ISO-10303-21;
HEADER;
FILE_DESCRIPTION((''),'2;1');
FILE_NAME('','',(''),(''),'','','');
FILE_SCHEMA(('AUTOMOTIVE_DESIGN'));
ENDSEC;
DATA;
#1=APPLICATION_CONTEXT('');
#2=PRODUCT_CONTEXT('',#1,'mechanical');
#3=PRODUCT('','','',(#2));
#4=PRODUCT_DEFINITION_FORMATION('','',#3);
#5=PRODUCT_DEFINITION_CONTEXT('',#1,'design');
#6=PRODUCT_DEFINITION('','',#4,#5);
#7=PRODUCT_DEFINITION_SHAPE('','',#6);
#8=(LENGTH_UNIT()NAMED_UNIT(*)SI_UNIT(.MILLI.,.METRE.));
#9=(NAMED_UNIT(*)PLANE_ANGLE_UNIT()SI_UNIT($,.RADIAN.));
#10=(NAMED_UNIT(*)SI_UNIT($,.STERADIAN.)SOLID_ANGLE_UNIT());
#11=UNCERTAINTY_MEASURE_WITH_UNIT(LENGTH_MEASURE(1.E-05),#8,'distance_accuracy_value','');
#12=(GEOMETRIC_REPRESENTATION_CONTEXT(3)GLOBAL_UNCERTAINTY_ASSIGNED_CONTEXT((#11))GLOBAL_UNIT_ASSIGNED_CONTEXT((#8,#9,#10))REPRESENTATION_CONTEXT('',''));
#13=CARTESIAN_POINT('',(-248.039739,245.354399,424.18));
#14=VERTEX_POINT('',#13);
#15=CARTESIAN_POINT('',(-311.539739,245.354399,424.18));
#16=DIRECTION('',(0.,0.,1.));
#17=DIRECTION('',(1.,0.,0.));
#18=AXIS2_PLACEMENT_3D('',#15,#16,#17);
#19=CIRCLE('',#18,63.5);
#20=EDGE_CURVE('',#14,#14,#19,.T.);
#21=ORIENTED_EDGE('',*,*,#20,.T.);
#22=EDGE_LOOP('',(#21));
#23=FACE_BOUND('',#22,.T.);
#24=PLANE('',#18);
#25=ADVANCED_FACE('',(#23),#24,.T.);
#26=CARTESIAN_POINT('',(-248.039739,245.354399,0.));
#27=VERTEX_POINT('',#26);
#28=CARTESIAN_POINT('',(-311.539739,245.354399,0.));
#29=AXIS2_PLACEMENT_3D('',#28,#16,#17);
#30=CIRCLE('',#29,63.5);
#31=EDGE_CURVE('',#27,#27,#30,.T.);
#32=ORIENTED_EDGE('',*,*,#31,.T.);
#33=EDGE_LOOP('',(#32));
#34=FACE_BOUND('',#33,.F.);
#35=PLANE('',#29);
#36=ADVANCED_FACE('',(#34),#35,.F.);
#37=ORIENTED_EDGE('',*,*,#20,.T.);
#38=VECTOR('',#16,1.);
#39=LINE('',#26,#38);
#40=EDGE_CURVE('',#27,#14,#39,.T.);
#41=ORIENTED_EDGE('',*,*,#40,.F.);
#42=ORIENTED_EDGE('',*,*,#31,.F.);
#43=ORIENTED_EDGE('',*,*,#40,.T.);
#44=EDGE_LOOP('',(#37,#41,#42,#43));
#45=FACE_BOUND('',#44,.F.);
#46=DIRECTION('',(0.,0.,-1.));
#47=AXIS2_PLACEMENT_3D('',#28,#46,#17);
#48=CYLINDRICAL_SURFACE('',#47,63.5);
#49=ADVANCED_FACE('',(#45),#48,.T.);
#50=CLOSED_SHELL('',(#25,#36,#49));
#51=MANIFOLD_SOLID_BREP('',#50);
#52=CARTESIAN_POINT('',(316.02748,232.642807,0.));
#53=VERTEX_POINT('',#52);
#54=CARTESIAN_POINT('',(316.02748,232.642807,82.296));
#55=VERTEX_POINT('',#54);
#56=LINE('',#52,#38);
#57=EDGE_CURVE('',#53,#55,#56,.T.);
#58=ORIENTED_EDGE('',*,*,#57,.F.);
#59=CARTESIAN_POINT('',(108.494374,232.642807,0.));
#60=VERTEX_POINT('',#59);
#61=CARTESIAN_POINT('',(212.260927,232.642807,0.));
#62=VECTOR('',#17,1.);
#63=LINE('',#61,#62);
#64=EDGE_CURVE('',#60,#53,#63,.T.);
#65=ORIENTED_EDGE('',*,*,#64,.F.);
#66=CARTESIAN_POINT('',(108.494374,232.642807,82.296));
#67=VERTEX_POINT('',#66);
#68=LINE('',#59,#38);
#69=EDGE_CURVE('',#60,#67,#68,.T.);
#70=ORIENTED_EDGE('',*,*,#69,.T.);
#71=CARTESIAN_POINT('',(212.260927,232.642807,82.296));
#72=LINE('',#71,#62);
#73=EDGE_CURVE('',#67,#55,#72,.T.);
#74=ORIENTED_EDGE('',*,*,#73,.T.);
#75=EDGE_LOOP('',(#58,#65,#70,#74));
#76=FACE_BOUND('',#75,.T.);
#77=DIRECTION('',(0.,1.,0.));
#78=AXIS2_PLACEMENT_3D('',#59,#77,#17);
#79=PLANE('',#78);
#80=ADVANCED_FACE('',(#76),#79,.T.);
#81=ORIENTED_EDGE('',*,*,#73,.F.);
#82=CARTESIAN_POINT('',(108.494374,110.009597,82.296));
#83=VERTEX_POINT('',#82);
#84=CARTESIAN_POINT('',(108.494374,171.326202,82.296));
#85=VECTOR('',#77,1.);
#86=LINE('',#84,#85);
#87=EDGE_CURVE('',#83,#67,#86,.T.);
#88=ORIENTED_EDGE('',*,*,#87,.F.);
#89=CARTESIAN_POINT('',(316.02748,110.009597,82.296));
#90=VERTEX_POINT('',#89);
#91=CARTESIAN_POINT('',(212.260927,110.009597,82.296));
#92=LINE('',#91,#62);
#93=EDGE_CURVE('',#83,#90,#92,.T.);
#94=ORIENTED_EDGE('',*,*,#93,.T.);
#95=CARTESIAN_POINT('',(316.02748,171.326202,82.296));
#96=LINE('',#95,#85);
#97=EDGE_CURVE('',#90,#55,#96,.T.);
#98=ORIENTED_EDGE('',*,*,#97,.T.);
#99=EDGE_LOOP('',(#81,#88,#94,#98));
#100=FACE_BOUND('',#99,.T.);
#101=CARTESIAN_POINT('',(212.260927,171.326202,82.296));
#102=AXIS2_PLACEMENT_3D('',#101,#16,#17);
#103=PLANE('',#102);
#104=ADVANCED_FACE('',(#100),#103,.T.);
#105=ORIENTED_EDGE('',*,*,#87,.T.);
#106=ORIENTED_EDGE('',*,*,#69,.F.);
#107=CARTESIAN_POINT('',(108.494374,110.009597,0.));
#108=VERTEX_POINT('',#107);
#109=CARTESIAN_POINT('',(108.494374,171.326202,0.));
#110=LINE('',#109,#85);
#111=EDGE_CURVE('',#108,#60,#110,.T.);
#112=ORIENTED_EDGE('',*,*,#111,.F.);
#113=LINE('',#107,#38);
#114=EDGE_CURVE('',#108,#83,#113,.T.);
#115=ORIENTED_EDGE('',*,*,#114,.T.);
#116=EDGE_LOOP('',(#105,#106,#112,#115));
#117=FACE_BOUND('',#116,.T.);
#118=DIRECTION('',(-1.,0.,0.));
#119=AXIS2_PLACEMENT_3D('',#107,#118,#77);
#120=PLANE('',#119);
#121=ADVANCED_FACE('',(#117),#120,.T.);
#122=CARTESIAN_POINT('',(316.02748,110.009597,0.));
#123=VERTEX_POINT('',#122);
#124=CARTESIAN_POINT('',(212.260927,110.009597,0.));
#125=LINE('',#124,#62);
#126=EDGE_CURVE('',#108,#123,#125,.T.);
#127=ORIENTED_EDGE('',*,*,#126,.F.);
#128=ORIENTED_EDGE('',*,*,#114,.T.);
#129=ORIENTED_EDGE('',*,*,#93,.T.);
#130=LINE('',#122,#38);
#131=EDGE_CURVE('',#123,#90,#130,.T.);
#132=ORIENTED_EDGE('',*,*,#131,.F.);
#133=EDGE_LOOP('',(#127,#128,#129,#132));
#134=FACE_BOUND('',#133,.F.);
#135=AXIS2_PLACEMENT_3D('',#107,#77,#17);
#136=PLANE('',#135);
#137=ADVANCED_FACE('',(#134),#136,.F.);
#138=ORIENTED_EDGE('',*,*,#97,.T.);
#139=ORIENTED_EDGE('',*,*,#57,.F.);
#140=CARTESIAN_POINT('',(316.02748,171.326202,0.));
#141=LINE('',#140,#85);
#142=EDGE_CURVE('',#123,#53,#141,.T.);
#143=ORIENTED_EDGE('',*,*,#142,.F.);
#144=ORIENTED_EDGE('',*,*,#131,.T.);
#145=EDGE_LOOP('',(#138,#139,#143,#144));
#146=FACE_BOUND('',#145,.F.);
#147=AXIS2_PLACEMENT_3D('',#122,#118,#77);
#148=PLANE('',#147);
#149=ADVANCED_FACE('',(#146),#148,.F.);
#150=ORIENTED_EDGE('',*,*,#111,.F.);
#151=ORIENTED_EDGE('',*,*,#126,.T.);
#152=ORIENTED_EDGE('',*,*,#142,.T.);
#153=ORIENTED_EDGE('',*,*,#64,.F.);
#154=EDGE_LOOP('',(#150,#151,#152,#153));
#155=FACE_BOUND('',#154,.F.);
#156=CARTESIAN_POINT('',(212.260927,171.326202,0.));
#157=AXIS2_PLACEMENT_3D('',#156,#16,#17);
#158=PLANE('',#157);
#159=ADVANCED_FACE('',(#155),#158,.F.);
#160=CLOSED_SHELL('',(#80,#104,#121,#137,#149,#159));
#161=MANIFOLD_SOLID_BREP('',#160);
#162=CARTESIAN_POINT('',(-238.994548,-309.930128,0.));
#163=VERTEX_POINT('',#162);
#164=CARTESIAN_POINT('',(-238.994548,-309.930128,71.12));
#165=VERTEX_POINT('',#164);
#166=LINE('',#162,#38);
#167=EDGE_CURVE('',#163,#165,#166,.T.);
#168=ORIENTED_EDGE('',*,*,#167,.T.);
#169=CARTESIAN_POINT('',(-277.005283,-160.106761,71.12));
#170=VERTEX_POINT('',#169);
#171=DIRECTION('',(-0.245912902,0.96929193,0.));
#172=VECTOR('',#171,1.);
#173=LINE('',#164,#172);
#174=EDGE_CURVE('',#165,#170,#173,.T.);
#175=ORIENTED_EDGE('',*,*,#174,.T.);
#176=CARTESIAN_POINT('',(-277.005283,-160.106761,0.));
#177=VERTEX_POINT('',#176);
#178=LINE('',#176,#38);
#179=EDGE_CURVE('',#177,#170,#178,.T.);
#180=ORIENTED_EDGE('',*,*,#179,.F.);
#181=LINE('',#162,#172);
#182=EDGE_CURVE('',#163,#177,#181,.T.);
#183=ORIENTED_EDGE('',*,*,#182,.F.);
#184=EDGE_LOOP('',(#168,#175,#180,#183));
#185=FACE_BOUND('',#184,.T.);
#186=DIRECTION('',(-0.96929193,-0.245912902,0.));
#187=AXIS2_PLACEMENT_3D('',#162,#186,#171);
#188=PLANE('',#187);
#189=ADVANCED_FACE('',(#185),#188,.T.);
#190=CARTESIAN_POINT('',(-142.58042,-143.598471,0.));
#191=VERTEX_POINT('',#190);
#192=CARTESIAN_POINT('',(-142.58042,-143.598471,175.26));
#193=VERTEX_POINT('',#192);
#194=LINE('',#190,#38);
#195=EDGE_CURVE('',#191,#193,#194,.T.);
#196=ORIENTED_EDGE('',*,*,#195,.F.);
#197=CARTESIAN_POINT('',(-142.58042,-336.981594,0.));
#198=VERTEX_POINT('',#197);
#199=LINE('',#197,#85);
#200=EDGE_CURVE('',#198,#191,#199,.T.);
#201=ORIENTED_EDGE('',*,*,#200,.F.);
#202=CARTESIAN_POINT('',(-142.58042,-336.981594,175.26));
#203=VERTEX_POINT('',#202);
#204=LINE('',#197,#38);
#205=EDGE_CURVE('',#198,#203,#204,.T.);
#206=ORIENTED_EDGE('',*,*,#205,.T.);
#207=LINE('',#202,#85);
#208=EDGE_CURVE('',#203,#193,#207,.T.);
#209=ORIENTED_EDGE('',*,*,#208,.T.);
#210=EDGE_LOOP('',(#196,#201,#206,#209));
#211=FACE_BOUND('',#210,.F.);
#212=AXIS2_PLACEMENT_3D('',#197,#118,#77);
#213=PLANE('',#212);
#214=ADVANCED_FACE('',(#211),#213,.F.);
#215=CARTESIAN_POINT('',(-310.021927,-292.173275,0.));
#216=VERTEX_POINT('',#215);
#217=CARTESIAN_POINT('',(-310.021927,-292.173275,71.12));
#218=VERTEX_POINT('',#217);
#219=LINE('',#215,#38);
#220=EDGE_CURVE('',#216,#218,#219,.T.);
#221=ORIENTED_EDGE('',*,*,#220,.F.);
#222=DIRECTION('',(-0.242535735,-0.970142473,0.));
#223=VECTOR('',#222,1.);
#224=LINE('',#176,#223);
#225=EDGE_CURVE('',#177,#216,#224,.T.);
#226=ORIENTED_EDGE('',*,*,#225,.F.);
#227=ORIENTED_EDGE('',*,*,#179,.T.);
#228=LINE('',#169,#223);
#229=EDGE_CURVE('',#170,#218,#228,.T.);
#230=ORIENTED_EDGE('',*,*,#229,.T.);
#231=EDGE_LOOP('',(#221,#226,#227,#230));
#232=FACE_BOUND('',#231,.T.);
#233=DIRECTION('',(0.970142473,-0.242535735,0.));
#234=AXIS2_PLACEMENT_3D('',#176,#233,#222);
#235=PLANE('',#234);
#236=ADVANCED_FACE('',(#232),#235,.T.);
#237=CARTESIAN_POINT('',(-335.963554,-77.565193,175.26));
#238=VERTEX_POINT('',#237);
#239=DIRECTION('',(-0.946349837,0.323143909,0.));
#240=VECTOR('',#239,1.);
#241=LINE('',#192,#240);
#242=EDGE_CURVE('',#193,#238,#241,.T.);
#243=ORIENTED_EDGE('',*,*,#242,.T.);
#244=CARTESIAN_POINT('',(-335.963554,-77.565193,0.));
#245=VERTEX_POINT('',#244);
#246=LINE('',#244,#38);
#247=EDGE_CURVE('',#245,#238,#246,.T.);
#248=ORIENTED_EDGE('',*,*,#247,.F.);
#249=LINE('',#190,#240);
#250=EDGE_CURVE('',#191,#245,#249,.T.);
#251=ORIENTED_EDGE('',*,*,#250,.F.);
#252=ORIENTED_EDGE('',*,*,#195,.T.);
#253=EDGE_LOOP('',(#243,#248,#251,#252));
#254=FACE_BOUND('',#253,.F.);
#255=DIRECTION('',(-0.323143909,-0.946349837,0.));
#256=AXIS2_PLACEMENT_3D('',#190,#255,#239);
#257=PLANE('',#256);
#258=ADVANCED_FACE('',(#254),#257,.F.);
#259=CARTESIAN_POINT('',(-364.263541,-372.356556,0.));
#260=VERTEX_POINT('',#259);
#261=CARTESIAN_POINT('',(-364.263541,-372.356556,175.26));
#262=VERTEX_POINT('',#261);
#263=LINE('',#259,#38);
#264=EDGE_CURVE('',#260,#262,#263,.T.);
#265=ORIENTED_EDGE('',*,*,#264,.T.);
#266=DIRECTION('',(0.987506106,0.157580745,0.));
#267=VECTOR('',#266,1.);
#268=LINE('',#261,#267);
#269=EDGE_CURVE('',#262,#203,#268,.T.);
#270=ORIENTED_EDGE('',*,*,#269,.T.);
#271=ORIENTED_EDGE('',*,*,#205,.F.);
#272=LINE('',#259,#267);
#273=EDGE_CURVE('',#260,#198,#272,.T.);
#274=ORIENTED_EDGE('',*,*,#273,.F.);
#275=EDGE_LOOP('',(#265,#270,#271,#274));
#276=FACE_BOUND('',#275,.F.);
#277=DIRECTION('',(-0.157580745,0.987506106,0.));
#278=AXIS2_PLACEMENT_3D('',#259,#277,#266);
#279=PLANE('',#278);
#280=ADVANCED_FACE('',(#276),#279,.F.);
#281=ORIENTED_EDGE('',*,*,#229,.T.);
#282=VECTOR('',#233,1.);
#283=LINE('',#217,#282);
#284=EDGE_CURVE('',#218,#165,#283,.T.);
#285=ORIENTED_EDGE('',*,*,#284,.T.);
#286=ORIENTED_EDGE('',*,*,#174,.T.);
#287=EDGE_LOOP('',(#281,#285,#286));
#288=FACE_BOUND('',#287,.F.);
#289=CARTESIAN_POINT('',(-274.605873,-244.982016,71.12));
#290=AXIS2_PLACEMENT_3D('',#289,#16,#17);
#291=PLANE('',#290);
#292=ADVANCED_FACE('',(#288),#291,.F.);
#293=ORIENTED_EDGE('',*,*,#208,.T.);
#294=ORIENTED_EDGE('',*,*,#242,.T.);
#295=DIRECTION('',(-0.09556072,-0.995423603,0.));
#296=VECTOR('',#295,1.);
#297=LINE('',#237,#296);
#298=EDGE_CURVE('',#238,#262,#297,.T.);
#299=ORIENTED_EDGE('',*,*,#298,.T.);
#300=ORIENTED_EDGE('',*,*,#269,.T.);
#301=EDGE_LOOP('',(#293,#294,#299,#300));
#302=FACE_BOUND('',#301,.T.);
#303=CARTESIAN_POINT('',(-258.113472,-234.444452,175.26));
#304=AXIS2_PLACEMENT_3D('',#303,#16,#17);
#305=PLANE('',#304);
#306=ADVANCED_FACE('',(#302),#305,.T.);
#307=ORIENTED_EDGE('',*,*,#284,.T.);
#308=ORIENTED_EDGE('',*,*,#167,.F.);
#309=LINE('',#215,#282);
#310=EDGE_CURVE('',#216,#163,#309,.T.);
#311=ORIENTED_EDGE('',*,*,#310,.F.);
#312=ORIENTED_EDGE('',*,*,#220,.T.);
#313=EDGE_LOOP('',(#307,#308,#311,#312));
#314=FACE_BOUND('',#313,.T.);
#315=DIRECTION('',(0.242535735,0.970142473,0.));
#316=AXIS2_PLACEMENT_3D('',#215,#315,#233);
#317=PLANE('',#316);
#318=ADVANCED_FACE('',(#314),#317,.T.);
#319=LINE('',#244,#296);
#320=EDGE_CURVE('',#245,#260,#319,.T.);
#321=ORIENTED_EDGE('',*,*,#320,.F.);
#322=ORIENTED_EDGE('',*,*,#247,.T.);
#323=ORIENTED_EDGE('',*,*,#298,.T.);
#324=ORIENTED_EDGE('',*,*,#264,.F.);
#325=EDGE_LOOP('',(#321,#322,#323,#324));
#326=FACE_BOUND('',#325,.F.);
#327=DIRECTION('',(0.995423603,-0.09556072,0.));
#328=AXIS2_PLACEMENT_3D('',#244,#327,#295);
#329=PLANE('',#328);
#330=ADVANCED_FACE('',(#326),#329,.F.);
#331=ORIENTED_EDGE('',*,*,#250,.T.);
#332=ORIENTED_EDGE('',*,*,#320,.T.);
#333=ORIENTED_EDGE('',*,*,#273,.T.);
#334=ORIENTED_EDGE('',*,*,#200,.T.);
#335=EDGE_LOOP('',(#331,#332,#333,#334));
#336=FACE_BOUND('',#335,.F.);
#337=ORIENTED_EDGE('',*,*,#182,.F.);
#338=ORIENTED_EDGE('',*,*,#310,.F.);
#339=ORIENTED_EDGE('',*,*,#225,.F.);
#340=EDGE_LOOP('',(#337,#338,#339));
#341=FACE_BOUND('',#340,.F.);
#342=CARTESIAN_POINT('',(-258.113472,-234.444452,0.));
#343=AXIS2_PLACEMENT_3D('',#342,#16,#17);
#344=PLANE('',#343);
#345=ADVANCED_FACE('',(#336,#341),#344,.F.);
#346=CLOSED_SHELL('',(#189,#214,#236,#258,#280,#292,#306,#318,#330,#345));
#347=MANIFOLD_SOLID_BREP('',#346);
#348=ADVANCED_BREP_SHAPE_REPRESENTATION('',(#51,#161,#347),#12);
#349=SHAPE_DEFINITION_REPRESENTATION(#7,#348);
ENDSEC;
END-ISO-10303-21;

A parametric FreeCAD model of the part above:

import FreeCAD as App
import Part
import Sketcher
Q = App.Units.Quantity

doc = App.newDocument("Part")
body = doc.addObject("PartDesign::Body", "Body")

# Sketch on XY plane
sketch1 = body.newObject("Sketcher::SketchObject", "Sketch")
sketch1.AttachmentSupport = (doc.getObject("XY_Plane"), [""])
sketch1.MapMode = "FlatFace"
sketch1.addGeometry([
    Part.LineSegment(App.Vector(108, 233, 0), App.Vector(108, 110, 0)),
    Part.LineSegment(App.Vector(108, 110, 0), App.Vector(316, 110, 0)),
    Part.LineSegment(App.Vector(316, 110, 0), App.Vector(316, 233, 0)),
    Part.LineSegment(App.Vector(316, 233, 0), App.Vector(108, 233, 0)),
], False)
sketch1.addConstraint([
    Sketcher.Constraint("Coincident", 0, 2, 1, 1),
    Sketcher.Constraint("Coincident", 1, 2, 2, 1),
    Sketcher.Constraint("Coincident", 2, 2, 3, 1),
    Sketcher.Constraint("Coincident", 3, 2, 0, 1),
    Sketcher.Constraint("Vertical", 0),
    Sketcher.Constraint("Horizontal", 1),
    Sketcher.Constraint("Vertical", 2),
    Sketcher.Constraint("Horizontal", 3),
    Sketcher.Constraint("DistanceY", 0, 2, 0, 1, Q("122.633209 mm")),
    Sketcher.Constraint("DistanceX", 1, 1, 1, 2, Q("207.533106 mm")),
    Sketcher.Constraint("DistanceX", -1, 1, 1, 2, Q("316.02748 mm")),
    Sketcher.Constraint("DistanceY", -1, 1, 0, 2, Q("110.009597 mm")),
])
pad1 = body.newObject("PartDesign::Pad", "Pad")
pad1.Profile = sketch1
pad1.Length = Q("3.24 in")
body2 = doc.addObject("PartDesign::Body", "Body001")

# Sketch on XY plane
sketch2 = body2.newObject("Sketcher::SketchObject", "Sketch001")
sketch2.AttachmentSupport = (doc.getObject("XY_Plane001"), [""])
sketch2.MapMode = "FlatFace"
sketch2.addGeometry([
    Part.LineSegment(App.Vector(-143, -144, 0), App.Vector(-336, -78, 0)),
    Part.LineSegment(App.Vector(-336, -78, 0), App.Vector(-364, -372, 0)),
    Part.LineSegment(App.Vector(-364, -372, 0), App.Vector(-143, -337, 0)),
    Part.LineSegment(App.Vector(-143, -337, 0), App.Vector(-143, -144, 0)),
], False)
sketch2.addConstraint([
    Sketcher.Constraint("Coincident", 0, 2, 1, 1),
    Sketcher.Constraint("Coincident", 1, 2, 2, 1),
    Sketcher.Constraint("Coincident", 2, 2, 3, 1),
    Sketcher.Constraint("Coincident", 3, 2, 0, 1),
    Sketcher.Constraint("Vertical", 3),
    Sketcher.Constraint("DistanceY", 2, 2, 0, 2, Q("259.416401 mm")),
    Sketcher.Constraint("Distance", 0, Q("204.346349 mm")),
    Sketcher.Constraint("Distance", 1, Q("296.146648 mm")),
    Sketcher.Constraint("Distance", 2, Q("224.487848 mm")),
    Sketcher.Constraint("DistanceY", 3, 1, 3, 2, Q("193.383123 mm")),
    Sketcher.Constraint("DistanceX", 1, 2, -1, 1, Q("364.263541 mm")),
    Sketcher.Constraint("DistanceY", 3, 2, -1, 1, Q("143.598471 mm")),
])
pad2 = body2.newObject("PartDesign::Pad", "Pad001")
pad2.Profile = sketch2
pad2.Length = Q("6.9 in")

# Sketch on XY plane
sketch3 = body2.newObject("Sketcher::SketchObject", "Sketch002")
sketch3.AttachmentSupport = (doc.getObject("XY_Plane001"), [""])
sketch3.MapMode = "FlatFace"
sketch3.addGeometry([
    Part.LineSegment(App.Vector(-239, -310, 0), App.Vector(-277, -160, 0)),
    Part.LineSegment(App.Vector(-277, -160, 0), App.Vector(-310, -292, 0)),
    Part.LineSegment(App.Vector(-310, -292, 0), App.Vector(-239, -310, 0)),
], False)
sketch3.addConstraint([
    Sketcher.Constraint("Coincident", 0, 2, 1, 1),
    Sketcher.Constraint("Coincident", 1, 2, 2, 1),
    Sketcher.Constraint("Coincident", 2, 2, 0, 1),
    Sketcher.Constraint("Perpendicular", 1, 2),
    Sketcher.Constraint("Distance", 0, Q("154.569911 mm")),
    Sketcher.Constraint("Distance", 1, Q("136.13105 mm")),
    Sketcher.Constraint("DistanceY", 0, 2, -1, 1, Q("160.106761 mm")),
    Sketcher.Constraint("DistanceX", 1, 2, 2, 2, Q("71.027379 mm")),
    Sketcher.Constraint("DistanceX", 0, 2, -1, 1, Q("277.005283 mm")),
])
pocket1 = body2.newObject("PartDesign::Pocket", "Pocket")
pocket1.Profile = sketch3
pocket1.Length = Q("2.8 in")
pocket1.Reversed = True
body3 = doc.addObject("PartDesign::Body", "Body002")

# Sketch on XY plane
sketch4 = body3.newObject("Sketcher::SketchObject", "Sketch003")
sketch4.AttachmentSupport = (doc.getObject("XY_Plane002"), [""])
sketch4.MapMode = "FlatFace"
sketch4.addGeometry(Part.Circle(App.Vector(-312, 245, 0), App.Vector(0, 0, 1), 64), False)
sketch4.addConstraint([
    Sketcher.Constraint("Diameter", 0, Q("5 in")),
    Sketcher.Constraint("DistanceY", -1, 1, 0, 3, Q("245.354399 mm")),
    Sketcher.Constraint("DistanceX", 0, 3, -1, 1, Q("311.539739 mm")),
])
pad3 = body3.newObject("PartDesign::Pad", "Pad002")
pad3.Profile = sketch4
pad3.Length = Q("16.7 in")

doc.recompute()
